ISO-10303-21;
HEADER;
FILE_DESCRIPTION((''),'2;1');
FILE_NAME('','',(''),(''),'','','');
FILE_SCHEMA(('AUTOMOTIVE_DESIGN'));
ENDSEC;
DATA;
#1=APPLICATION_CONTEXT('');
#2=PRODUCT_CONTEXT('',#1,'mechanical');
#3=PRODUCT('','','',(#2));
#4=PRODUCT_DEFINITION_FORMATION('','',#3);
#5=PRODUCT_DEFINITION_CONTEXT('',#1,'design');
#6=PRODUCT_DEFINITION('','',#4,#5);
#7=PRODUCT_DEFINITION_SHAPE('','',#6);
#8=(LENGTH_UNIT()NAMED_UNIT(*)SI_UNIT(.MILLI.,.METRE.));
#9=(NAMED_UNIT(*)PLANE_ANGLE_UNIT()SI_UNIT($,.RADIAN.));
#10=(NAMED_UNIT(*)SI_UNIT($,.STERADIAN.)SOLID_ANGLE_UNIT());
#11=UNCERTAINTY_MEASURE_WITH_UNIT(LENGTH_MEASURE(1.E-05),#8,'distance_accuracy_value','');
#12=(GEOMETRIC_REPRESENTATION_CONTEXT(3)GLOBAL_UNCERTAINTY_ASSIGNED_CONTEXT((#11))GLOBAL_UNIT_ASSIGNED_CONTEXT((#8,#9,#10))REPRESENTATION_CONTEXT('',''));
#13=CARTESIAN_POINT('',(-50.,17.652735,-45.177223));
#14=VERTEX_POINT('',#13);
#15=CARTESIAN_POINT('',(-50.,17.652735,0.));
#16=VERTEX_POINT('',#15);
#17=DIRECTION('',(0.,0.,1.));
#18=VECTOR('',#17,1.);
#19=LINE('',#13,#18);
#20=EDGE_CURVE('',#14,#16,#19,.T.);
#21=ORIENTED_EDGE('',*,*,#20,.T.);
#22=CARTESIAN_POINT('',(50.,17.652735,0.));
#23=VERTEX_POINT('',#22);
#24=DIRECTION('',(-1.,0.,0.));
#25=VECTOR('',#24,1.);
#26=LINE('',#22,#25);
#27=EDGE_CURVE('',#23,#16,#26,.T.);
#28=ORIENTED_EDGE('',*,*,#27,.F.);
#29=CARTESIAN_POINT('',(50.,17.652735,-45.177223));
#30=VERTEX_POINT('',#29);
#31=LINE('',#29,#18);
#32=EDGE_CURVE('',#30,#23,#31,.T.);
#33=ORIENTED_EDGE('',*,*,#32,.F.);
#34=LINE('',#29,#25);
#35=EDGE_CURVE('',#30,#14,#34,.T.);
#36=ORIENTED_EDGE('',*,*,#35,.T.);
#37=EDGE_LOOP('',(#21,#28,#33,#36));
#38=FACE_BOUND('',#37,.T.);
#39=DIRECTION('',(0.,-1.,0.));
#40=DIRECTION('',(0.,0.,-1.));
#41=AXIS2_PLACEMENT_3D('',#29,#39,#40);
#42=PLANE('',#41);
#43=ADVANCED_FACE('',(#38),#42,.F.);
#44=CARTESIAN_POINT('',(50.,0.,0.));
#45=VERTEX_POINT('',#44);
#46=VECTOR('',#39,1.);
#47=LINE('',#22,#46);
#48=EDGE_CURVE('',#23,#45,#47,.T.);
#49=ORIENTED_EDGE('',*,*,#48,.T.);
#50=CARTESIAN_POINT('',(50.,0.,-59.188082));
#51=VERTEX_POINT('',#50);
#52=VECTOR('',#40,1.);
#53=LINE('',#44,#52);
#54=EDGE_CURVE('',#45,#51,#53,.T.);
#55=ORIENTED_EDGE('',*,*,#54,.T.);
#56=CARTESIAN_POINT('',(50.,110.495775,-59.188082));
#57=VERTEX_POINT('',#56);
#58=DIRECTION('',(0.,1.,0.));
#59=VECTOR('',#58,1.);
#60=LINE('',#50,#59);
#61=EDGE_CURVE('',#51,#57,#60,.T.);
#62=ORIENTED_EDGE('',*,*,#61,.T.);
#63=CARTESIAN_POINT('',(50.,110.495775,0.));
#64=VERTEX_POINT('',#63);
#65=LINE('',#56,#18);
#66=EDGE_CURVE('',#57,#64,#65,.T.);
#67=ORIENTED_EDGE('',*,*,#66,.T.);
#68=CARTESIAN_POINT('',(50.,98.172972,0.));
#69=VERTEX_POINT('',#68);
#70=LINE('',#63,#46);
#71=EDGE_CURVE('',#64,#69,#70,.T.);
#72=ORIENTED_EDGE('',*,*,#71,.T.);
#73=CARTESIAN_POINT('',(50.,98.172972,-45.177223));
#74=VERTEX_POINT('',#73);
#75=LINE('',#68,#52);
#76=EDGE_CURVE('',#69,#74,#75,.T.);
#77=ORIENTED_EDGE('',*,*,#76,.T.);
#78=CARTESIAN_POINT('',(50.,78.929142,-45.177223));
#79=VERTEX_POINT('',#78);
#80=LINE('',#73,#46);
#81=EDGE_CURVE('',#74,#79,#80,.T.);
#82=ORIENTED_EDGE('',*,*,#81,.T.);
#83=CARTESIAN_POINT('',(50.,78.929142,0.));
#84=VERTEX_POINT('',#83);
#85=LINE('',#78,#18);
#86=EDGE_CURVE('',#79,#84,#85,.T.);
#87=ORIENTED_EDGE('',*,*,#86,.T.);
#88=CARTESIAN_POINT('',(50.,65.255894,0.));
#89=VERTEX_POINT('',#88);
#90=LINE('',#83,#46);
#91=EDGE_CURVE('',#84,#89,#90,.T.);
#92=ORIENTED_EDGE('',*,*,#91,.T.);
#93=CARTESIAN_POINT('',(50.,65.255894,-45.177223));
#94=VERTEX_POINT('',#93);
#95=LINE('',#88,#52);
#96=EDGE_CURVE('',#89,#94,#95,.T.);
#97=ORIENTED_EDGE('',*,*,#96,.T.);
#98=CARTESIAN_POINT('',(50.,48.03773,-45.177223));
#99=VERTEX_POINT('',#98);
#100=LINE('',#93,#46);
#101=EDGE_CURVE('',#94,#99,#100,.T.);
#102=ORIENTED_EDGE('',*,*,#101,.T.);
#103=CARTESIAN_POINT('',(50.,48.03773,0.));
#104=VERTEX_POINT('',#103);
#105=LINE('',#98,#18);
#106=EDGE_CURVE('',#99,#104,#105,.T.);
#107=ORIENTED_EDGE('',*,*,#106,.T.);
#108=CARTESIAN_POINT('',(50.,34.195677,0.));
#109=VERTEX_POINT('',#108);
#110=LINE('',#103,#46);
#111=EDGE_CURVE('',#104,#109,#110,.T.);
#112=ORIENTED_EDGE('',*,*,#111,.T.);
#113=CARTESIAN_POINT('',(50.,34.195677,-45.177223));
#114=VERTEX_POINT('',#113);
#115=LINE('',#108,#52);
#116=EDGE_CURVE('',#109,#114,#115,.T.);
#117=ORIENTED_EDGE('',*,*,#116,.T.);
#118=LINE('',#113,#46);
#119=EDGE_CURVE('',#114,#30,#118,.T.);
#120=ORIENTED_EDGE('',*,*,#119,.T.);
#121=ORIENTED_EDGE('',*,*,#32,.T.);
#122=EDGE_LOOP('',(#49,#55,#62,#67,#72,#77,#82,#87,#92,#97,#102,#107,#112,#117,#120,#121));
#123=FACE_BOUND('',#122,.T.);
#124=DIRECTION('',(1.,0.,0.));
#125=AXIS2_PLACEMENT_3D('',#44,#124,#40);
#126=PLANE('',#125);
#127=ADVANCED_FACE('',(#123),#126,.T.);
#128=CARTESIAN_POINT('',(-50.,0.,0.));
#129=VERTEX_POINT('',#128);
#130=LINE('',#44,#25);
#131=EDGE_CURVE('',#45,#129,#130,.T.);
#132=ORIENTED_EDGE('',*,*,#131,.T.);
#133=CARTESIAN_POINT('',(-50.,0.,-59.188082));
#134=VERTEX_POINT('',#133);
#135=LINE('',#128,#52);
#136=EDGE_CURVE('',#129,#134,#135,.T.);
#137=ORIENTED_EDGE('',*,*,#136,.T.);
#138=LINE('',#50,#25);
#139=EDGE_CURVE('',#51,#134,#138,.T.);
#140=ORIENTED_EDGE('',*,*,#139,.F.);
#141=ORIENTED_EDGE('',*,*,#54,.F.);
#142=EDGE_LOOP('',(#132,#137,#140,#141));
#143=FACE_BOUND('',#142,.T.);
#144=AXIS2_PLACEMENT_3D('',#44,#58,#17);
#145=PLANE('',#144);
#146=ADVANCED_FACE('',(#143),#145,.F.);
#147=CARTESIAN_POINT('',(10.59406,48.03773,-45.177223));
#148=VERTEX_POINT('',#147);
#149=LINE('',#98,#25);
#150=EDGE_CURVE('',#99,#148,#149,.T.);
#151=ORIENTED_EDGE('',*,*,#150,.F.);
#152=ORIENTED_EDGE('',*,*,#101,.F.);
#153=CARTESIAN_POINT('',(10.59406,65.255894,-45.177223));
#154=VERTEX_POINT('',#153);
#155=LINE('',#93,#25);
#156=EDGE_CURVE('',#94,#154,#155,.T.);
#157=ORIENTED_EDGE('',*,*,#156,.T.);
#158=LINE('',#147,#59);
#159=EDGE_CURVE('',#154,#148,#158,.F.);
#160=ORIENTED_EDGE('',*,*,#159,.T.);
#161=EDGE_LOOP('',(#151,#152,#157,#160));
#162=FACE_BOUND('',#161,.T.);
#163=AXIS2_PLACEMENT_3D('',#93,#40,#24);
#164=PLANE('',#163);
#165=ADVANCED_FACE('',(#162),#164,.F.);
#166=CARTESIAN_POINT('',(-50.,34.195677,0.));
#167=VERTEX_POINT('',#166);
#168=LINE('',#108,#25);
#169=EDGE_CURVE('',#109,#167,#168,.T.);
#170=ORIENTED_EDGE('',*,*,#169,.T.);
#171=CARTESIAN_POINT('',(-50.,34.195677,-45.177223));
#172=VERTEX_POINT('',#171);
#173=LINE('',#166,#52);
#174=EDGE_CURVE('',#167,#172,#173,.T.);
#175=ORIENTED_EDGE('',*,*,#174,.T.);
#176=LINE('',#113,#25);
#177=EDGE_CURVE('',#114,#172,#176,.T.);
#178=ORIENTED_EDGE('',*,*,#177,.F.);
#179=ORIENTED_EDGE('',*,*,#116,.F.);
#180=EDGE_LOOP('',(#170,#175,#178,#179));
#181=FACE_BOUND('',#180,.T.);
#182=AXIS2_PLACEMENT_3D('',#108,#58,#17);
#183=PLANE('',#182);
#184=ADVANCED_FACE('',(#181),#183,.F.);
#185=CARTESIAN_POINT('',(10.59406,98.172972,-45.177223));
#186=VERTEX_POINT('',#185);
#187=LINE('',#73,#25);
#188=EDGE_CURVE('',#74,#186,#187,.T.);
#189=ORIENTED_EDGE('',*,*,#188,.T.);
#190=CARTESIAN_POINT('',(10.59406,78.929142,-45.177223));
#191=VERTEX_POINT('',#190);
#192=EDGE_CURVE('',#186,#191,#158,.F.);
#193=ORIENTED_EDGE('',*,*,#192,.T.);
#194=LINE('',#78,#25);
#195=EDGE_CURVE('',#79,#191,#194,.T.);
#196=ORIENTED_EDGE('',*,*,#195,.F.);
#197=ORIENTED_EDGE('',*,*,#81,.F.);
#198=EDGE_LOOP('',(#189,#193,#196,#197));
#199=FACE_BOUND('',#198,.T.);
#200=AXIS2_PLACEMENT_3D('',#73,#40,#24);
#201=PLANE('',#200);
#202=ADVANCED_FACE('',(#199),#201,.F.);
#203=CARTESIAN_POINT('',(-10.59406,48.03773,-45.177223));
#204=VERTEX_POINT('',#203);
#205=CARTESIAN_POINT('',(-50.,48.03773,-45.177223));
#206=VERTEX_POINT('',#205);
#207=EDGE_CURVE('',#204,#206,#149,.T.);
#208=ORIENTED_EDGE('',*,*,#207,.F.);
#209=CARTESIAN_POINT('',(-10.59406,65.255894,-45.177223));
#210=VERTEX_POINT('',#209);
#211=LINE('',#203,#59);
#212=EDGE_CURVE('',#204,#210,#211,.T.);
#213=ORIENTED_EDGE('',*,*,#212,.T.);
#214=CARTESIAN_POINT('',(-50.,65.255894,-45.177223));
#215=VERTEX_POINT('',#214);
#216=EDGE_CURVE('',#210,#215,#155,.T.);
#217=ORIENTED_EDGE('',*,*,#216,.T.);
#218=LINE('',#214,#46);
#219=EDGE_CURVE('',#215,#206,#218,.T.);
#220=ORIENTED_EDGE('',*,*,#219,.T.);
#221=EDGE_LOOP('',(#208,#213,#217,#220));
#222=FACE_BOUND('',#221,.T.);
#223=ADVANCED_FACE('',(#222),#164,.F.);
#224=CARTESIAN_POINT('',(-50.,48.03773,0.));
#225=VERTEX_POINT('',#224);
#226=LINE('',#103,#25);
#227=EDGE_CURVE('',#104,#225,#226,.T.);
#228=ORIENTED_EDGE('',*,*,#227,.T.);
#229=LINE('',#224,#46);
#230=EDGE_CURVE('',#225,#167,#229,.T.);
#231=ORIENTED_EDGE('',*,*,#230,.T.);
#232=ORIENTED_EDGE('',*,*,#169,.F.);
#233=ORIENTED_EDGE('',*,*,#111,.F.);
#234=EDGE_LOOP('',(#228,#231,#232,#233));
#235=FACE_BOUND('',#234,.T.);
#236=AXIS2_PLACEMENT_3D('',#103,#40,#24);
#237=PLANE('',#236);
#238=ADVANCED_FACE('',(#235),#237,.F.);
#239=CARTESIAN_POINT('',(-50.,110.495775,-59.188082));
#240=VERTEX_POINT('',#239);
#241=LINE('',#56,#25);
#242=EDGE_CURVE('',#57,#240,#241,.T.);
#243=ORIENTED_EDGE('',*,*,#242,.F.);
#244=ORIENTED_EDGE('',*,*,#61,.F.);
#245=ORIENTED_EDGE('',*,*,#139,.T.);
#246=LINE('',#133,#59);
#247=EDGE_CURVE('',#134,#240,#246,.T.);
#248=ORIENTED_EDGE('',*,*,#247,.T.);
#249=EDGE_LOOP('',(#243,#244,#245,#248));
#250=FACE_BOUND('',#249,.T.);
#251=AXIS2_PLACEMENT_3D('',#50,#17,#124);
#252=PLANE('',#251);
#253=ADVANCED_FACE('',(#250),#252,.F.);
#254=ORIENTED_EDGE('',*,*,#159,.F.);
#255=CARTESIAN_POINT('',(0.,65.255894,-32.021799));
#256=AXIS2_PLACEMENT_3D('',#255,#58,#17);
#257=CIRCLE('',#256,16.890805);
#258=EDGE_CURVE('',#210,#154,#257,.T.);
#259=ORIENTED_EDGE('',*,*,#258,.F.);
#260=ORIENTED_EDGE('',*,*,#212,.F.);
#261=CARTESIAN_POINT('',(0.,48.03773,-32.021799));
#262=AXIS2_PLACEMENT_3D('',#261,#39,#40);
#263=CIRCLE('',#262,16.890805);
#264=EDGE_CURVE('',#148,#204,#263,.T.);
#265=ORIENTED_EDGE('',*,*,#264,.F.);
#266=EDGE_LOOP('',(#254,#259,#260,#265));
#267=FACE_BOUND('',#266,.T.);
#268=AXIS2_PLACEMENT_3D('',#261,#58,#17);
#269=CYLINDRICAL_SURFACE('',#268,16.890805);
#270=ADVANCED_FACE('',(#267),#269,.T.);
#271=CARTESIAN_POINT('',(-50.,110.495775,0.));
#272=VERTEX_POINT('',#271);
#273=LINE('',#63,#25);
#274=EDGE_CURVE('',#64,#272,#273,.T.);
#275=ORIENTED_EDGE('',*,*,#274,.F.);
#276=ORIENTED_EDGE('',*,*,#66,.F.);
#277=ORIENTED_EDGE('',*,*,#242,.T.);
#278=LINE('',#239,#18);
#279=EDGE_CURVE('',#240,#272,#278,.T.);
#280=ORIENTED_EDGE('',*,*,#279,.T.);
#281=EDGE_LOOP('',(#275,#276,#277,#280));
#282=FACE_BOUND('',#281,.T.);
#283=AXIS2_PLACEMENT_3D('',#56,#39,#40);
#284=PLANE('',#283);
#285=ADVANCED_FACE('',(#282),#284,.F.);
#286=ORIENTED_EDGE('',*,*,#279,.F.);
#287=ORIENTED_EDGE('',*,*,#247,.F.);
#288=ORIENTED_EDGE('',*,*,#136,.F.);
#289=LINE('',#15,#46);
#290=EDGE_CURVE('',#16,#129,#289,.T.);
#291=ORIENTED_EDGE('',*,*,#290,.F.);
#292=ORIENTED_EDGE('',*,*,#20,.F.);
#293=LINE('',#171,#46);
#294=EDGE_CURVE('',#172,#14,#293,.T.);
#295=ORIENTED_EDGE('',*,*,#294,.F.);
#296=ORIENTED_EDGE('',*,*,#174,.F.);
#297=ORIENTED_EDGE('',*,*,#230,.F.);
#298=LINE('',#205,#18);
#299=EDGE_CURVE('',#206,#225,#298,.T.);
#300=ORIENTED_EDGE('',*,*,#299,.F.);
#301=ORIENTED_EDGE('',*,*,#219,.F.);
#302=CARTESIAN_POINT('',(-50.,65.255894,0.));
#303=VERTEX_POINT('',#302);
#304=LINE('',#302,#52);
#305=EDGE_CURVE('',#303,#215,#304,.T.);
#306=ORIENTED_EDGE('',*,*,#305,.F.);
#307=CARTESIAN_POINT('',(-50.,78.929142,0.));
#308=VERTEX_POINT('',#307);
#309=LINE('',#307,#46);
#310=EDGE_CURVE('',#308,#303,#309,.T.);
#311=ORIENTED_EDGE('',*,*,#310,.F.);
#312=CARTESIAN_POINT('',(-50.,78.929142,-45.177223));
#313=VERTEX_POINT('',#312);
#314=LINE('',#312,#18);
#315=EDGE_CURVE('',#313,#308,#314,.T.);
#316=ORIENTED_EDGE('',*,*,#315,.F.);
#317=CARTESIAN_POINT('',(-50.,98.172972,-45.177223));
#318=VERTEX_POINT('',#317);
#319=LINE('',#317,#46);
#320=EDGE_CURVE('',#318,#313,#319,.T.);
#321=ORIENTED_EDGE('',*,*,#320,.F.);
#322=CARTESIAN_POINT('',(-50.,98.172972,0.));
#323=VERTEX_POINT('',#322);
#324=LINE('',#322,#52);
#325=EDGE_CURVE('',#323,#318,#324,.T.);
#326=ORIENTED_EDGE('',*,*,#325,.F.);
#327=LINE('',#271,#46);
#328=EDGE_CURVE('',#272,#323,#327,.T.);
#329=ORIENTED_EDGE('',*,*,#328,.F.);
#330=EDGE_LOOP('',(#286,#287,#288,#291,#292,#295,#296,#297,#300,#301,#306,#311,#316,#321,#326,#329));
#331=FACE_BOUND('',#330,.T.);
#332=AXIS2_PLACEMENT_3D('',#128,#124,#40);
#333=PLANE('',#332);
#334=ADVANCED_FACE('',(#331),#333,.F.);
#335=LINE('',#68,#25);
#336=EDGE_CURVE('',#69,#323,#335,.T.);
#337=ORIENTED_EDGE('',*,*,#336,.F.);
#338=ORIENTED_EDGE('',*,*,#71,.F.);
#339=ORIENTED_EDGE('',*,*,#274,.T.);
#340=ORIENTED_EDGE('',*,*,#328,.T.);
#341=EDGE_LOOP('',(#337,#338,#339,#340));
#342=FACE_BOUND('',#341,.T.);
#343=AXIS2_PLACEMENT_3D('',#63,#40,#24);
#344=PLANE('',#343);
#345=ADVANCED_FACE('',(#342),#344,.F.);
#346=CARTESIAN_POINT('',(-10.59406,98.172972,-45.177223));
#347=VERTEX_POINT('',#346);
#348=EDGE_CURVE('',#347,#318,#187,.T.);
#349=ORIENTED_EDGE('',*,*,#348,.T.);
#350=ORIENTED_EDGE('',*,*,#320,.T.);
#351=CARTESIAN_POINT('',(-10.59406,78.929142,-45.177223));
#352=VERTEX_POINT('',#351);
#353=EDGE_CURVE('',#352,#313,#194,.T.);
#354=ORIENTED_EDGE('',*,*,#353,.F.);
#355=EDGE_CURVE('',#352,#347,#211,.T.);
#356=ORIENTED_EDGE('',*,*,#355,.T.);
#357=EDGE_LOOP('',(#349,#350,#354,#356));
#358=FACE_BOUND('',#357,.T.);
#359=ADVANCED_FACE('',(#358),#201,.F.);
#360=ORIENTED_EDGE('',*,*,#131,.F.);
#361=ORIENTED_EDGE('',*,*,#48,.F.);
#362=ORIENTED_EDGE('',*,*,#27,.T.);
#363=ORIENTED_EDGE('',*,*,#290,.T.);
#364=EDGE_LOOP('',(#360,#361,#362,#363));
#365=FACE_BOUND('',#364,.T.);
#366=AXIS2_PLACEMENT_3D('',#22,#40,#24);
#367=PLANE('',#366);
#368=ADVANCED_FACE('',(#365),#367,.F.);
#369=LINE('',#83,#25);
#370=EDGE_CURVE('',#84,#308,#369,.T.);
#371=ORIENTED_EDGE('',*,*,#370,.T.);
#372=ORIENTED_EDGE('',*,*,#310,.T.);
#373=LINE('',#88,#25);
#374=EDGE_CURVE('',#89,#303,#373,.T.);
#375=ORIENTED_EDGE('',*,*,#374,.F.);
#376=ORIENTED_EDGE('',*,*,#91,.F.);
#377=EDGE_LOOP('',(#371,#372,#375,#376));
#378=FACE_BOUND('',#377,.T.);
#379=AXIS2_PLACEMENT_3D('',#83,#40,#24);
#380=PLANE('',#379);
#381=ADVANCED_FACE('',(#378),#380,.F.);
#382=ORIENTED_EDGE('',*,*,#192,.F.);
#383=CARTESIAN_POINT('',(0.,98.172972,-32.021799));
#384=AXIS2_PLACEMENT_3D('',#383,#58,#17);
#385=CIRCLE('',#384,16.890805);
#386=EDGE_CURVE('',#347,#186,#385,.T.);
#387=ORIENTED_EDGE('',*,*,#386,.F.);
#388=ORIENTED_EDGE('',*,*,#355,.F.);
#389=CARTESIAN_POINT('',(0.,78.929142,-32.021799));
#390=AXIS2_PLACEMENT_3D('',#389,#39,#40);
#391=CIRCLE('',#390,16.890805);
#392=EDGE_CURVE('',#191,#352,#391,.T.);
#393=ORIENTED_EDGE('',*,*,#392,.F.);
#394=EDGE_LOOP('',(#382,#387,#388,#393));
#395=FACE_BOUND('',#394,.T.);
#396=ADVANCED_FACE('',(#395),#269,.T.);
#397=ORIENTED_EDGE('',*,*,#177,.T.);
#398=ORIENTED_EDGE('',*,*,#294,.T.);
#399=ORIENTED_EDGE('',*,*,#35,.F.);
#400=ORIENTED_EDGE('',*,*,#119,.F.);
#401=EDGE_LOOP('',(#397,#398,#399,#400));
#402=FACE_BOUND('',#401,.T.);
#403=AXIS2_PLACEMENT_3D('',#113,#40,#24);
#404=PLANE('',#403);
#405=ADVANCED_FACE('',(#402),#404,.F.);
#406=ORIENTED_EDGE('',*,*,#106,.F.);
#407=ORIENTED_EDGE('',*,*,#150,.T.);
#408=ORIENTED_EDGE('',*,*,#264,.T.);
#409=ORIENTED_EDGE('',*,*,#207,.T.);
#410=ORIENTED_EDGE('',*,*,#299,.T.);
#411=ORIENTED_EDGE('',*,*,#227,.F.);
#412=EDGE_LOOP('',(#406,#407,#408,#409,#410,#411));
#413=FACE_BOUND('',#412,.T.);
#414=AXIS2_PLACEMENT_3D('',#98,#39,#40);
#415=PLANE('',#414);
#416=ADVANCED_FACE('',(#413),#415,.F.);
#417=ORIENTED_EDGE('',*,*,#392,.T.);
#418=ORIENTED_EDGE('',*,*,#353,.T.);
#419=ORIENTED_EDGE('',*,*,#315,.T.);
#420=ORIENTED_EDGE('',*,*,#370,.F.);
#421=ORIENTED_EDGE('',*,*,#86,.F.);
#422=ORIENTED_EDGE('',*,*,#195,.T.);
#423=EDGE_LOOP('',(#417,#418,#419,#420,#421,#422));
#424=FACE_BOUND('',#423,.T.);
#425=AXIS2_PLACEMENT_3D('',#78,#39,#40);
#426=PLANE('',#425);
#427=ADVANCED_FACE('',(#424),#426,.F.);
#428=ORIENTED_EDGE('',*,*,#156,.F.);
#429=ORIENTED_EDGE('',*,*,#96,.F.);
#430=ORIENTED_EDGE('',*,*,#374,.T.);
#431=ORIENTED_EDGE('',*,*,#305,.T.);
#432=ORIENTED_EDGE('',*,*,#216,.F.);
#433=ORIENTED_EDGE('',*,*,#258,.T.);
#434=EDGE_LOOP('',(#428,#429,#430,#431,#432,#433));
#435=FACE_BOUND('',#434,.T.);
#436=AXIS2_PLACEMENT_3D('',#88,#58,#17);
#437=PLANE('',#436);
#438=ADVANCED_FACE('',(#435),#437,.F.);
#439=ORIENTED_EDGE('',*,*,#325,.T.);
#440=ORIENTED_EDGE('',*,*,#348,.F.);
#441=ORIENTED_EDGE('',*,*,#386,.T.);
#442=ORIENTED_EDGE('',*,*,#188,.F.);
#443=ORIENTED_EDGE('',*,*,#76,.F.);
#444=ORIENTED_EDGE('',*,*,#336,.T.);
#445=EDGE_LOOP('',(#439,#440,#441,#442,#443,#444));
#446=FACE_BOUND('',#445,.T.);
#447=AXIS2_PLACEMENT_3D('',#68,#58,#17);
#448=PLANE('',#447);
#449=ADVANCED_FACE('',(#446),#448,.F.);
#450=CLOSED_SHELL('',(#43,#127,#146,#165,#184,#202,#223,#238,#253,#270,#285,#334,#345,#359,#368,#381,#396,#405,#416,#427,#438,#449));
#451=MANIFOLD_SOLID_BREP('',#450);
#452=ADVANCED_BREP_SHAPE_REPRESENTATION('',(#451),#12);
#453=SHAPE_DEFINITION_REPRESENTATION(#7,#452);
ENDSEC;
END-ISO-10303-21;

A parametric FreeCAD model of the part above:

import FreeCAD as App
import Part
import Sketcher

doc = App.newDocument("Part")
body = doc.addObject("PartDesign::Body", "Body")

sketch1 = body.newObject("Sketcher::SketchObject", "Sketch")
sketch1.AttachmentSupport = (doc.getObject("YZ_Plane"), [""])
sketch1.MapMode = "FlatFace"
sketch1.addGeometry([
    Part.LineSegment(App.Vector(0, 0, 0), App.Vector(0, -59, 0)),
    Part.LineSegment(App.Vector(0, -59, 0), App.Vector(110, -59, 0)),
    Part.LineSegment(App.Vector(110, -59, 0), App.Vector(110, 0, 0)),
    Part.LineSegment(App.Vector(110, 0, 0), App.Vector(98, 0, 0)),
    Part.LineSegment(App.Vector(98, 0, 0), App.Vector(98, -45, 0)),
    Part.LineSegment(App.Vector(98, -45, 0), App.Vector(79, -45, 0)),
    Part.LineSegment(App.Vector(79, -45, 0), App.Vector(79, 0, 0)),
    Part.LineSegment(App.Vector(79, 0, 0), App.Vector(65, 0, 0)),
    Part.LineSegment(App.Vector(65, 0, 0), App.Vector(65, -45, 0)),
    Part.LineSegment(App.Vector(65, -45, 0), App.Vector(48, -45, 0)),
    Part.LineSegment(App.Vector(48, -45, 0), App.Vector(48, 0, 0)),
    Part.LineSegment(App.Vector(48, 0, 0), App.Vector(34, 0, 0)),
    Part.LineSegment(App.Vector(34, 0, 0), App.Vector(34, -45, 0)),
    Part.LineSegment(App.Vector(34, -45, 0), App.Vector(18, -45, 0)),
    Part.LineSegment(App.Vector(18, -45, 0), App.Vector(18, 0, 0)),
    Part.LineSegment(App.Vector(18, 0, 0), App.Vector(0, 0, 0)),
], False)
sketch1.addConstraint([
    Sketcher.Constraint("Coincident", 0, 2, 1, 1),
    Sketcher.Constraint("Coincident", 1, 2, 2, 1),
    Sketcher.Constraint("Coincident", 2, 2, 3, 1),
    Sketcher.Constraint("Coincident", 3, 2, 4, 1),
    Sketcher.Constraint("Coincident", 4, 2, 5, 1),
    Sketcher.Constraint("Coincident", 5, 2, 6, 1),
    Sketcher.Constraint("Coincident", 6, 2, 7, 1),
    Sketcher.Constraint("Coincident", 7, 2, 8, 1),
    Sketcher.Constraint("Coincident", 8, 2, 9, 1),
    Sketcher.Constraint("Coincident", 9, 2, 10, 1),
    Sketcher.Constraint("Coincident", 10, 2, 11, 1),
    Sketcher.Constraint("Coincident", 11, 2, 12, 1),
    Sketcher.Constraint("Coincident", 12, 2, 13, 1),
    Sketcher.Constraint("Coincident", 13, 2, 14, 1),
    Sketcher.Constraint("Coincident", 14, 2, 15, 1),
    Sketcher.Constraint("Coincident", 15, 2, 0, 1),
    Sketcher.Constraint("Vertical", 0),
    Sketcher.Constraint("Horizontal", 1),
    Sketcher.Constraint("Vertical", 2),
    Sketcher.Constraint("Horizontal", 3),
    Sketcher.Constraint("Vertical", 4),
    Sketcher.Constraint("Horizontal", 5),
    Sketcher.Constraint("Vertical", 6),
    Sketcher.Constraint("Horizontal", 7),
    Sketcher.Constraint("Vertical", 8),
    Sketcher.Constraint("Horizontal", 9),
    Sketcher.Constraint("Vertical", 10),
    Sketcher.Constraint("Horizontal", 11),
    Sketcher.Constraint("Vertical", 12),
    Sketcher.Constraint("Horizontal", 13),
    Sketcher.Constraint("Vertical", 14),
    Sketcher.Constraint("Horizontal", 15),
    Sketcher.Constraint("Coincident", 15, 2, -1, 1),
    Sketcher.Constraint("PointOnObject", 2, 2, -1),
    Sketcher.Constraint("PointOnObject", 6, 2, -1),
    Sketcher.Constraint("PointOnObject", 10, 2, -1),
    Sketcher.Constraint("Horizontal", 5, 2, 8, 2),
    Sketcher.Constraint("Horizontal", 9, 2, 12, 2),
    Sketcher.Constraint("DistanceX", 5, 2, 5, 1, 19.24383),
    Sketcher.Constraint("DistanceX", 13, 2, 13, 1, 16.542942),
    Sketcher.Constraint("DistanceY", 0, 2, 0, 1, 59.188082),
    Sketcher.Constraint("DistanceX", 1, 1, 1, 2, 110.495775),
    Sketcher.Constraint("DistanceX", 3, 2, 3, 1, 12.322803),
    Sketcher.Constraint("DistanceX", 7, 2, 7, 1, 13.673248),
    Sketcher.Constraint("DistanceX", 9, 2, 9, 1, 17.218164),
    Sketcher.Constraint("DistanceX", 11, 2, 11, 1, 13.842053),
    Sketcher.Constraint("DistanceY", 4, 2, 4, 1, 45.177223),
])
pad1 = body.newObject("PartDesign::Pad", "Pad")
pad1.Profile = sketch1
pad1.Length = 100
pad1.Midplane = True

sketch2 = body.newObject("Sketcher::SketchObject", "Sketch001")
sketch2.AttachmentSupport = (doc.getObject("XZ_Plane"), [""])
sketch2.MapMode = "FlatFace"
sketch2.AttachmentOffset = App.Placement(App.Vector(0, 0, -110.495775), App.Rotation())
sketch2.addGeometry(Part.Circle(App.Vector(0, -32, 0), App.Vector(0, 0, 1), 17), False)
sketch2.addConstraint([
    Sketcher.Constraint("PointOnObject", 0, 3, -2),
    Sketcher.Constraint("Diameter", 0, 33.781609),
    Sketcher.Constraint("DistanceY", 0, 3, -1, 1, 32.021799),
])
pad2 = body.newObject("PartDesign::Pad", "Pad001")
pad2.Profile = sketch2
pad2.Length = 62.458045

doc.recompute()
